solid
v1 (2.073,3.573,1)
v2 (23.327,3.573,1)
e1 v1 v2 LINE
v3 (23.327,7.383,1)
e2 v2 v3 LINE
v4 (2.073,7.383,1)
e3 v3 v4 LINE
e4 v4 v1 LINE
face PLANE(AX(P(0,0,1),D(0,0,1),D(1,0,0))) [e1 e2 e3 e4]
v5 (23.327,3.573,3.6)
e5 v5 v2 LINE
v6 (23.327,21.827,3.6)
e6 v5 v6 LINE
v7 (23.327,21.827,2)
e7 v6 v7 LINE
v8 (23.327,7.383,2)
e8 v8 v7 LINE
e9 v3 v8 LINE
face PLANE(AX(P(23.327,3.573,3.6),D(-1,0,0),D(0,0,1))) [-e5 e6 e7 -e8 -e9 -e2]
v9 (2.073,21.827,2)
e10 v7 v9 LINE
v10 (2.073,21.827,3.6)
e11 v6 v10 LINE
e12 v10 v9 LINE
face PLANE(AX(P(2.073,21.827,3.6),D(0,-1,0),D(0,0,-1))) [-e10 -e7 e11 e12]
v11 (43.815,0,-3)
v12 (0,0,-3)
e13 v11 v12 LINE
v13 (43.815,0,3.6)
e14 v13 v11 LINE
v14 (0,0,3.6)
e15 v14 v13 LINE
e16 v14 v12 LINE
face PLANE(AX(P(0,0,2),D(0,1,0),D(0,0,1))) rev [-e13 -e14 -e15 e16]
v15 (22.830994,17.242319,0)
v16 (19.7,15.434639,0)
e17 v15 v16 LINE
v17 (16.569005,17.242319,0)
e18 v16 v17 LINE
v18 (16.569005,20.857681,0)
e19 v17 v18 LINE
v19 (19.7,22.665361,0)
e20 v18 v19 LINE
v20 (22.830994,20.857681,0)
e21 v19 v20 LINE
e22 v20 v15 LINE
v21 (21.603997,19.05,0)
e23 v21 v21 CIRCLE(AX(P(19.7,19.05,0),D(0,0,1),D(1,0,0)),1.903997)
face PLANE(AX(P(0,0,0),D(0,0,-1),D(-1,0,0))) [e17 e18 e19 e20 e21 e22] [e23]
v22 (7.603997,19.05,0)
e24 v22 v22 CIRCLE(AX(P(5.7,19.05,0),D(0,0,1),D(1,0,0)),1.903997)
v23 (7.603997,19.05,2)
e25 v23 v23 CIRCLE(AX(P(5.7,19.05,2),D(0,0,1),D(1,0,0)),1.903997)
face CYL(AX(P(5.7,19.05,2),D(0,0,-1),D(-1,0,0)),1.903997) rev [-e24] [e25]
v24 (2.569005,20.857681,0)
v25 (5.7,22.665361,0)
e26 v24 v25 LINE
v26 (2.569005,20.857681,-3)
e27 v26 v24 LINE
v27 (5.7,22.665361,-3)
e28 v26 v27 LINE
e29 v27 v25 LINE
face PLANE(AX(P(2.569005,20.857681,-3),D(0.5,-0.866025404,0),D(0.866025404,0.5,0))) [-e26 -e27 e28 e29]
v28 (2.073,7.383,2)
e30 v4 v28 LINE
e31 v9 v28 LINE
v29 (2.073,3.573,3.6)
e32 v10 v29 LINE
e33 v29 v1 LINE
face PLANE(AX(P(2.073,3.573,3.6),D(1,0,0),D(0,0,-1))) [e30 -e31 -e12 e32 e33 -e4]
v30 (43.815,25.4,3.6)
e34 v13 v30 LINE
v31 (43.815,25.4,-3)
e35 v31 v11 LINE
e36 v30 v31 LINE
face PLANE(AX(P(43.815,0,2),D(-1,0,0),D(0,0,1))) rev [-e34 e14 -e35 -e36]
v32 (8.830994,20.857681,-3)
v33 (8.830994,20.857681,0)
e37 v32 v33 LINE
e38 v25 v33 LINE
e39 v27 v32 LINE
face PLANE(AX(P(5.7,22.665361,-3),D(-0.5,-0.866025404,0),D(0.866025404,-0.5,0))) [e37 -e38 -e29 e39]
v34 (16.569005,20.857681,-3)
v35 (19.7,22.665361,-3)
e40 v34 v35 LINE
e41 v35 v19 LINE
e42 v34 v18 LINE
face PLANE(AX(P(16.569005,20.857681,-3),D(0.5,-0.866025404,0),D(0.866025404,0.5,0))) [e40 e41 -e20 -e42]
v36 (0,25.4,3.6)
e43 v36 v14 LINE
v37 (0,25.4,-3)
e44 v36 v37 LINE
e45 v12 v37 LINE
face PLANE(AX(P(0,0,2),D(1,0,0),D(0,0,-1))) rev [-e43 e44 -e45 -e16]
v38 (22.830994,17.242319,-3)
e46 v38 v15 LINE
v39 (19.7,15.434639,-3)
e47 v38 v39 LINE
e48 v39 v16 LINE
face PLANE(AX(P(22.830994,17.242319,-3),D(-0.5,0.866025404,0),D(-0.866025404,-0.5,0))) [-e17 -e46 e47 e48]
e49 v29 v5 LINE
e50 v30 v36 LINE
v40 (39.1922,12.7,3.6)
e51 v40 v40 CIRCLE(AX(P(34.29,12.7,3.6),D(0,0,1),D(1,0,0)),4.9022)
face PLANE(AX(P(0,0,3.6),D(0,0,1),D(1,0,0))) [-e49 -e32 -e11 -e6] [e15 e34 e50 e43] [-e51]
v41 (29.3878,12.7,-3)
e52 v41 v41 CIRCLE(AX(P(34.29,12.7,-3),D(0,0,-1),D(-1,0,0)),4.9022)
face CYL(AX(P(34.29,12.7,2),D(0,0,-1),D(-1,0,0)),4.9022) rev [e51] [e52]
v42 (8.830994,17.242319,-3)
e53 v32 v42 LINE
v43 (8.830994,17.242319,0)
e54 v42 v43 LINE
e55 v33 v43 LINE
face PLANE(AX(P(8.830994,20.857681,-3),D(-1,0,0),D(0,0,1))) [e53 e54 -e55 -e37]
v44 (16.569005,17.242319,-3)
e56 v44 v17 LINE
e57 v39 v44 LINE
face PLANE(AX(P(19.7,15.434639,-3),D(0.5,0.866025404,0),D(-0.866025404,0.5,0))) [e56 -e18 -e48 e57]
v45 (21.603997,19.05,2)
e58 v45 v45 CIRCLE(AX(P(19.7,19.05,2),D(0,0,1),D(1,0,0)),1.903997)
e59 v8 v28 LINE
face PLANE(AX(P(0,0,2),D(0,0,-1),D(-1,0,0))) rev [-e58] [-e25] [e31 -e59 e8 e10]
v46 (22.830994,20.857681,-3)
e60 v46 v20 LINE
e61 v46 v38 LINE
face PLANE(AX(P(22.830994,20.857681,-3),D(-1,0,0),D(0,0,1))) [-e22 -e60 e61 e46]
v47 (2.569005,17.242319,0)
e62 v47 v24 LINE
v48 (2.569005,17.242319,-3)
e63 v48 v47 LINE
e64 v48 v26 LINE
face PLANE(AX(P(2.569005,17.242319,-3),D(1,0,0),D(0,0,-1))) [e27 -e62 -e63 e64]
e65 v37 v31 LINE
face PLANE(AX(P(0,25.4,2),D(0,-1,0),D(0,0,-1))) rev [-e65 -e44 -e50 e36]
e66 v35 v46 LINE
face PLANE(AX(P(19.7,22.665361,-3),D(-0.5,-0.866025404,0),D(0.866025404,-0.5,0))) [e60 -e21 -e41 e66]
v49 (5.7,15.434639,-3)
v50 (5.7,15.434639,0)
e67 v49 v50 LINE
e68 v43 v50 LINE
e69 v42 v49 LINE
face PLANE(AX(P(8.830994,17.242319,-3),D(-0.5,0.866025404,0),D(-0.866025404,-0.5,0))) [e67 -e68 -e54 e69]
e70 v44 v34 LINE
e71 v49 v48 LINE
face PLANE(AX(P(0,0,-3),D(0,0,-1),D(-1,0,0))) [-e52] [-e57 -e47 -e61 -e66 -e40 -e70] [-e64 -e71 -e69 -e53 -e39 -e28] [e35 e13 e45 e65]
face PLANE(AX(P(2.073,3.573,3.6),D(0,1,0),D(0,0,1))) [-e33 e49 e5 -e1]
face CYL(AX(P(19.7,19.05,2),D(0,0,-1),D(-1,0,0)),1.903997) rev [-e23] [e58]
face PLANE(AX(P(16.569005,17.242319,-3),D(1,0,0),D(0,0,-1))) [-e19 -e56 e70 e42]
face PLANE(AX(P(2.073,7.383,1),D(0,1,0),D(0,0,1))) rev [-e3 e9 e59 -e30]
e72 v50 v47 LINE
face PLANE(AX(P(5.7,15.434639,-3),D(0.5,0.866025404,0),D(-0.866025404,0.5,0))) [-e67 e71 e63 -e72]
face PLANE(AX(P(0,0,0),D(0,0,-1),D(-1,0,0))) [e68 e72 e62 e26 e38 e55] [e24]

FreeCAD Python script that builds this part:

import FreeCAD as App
import Part
import Sketcher
Q = App.Units.Quantity


def add_polygon(sketch, points):
    """Adds a closed chain of lines whose ends are joined by coincident constraints."""
    first, n = sketch.GeometryCount, len(points)
    for a, b in zip(points, points[1:] + points[:1]):
        sketch.addGeometry(Part.LineSegment(App.Vector(*a, 0), App.Vector(*b, 0)), False)
    for i in range(n):
        sketch.addConstraint(Sketcher.Constraint("Coincident", first + i, 2, first + (i + 1) % n, 1))

doc = App.newDocument("Part")
body = doc.addObject("PartDesign::Body", "Body")

sketch1 = body.newObject("Sketcher::SketchObject", "Sketch")
sketch1.AttachmentSupport = (doc.getObject("XY_Plane"), [""])
sketch1.MapMode = "FlatFace"
add_polygon(sketch1, [(0, 25.4), (0, 0), (43.8, 0), (43.8, 25.4)])
sketch1.addGeometry(Part.Circle(App.Vector(34.3, 12.7, 0), App.Vector(0, 0, 1), 4.9), False)
sketch1.addGeometry(Part.Circle(App.Vector(5.7, 19.1, 0), App.Vector(0, 0, 1), 1.9), False)
sketch1.addGeometry(Part.Circle(App.Vector(19.7, 19.1, 0), App.Vector(0, 0, 1), 1.9), False)
sketch1.addConstraint([
    Sketcher.Constraint("Vertical", 0),
    Sketcher.Constraint("Horizontal", 1),
    Sketcher.Constraint("Vertical", 2),
    Sketcher.Constraint("Horizontal", 3),
    Sketcher.Constraint("Coincident", 0, 2, -1, 1),
    Sketcher.Constraint("Equal", 5, 6),
    Sketcher.Constraint("Horizontal", 5, 3, 6, 3),
    Sketcher.Constraint("DistanceY", 0, 2, 0, 1, 25.4),
    Sketcher.Constraint("DistanceX", 5, 3, 6, 3, 14.0),
    Sketcher.Constraint("Diameter", 4, 9.8044),
    Sketcher.Constraint("DistanceY", -1, 1, 4, 3, 12.7),
    Sketcher.Constraint("DistanceX", -1, 1, 5, 3, 5.7),
    Sketcher.Constraint("DistanceX", 1, 1, 1, 2, 43.815),
    Sketcher.Constraint("DistanceX", -1, 1, 4, 3, 34.29),
    Sketcher.Constraint("DistanceY", -1, 1, 5, 3, 19.05),
    Sketcher.Constraint("Diameter", 5, 3.807993),
])
pad1 = body.newObject("PartDesign::Pad", "Pad")
pad1.Profile = sketch1
pad1.Length = 2

sketch2 = body.newObject("Sketcher::SketchObject", "Sketch001")
sketch2.AttachmentSupport = (doc.getObject("XY_Plane"), [""])
sketch2.MapMode = "FlatFace"
sketch2.AttachmentOffset = App.Placement(App.Vector(0, 0, 2), App.Rotation())
add_polygon(sketch2, [(0, 25.4), (0, 0), (43.8, 0), (43.8, 25.4)])
add_polygon(sketch2, [(23.3, 3.6), (2.1, 3.6), (2.1, 21.8), (23.3, 21.8)])
sketch2.addGeometry(Part.Circle(App.Vector(34.3, 12.7, 0), App.Vector(0, 0, 1), 4.9), False)
sketch2.addConstraint([
    Sketcher.Constraint("Vertical", 0),
    Sketcher.Constraint("Horizontal", 1),
    Sketcher.Constraint("Vertical", 2),
    Sketcher.Constraint("Horizontal", 3),
    Sketcher.Constraint("Horizontal", 4),
    Sketcher.Constraint("Vertical", 5),
    Sketcher.Constraint("Horizontal", 6),
    Sketcher.Constraint("Vertical", 7),
    Sketcher.Constraint("Coincident", 0, 2, -1, 1),
    Sketcher.Constraint("DistanceY", 0, 2, 0, 1, 25.4),
    Sketcher.Constraint("Diameter", 8, 9.8044),
    Sketcher.Constraint("DistanceY", -1, 1, 8, 3, 12.7),
    Sketcher.Constraint("DistanceX", 1, 1, 1, 2, 43.815),
    Sketcher.Constraint("DistanceX", 4, 2, 4, 1, 21.254),
    Sketcher.Constraint("DistanceY", 5, 1, 5, 2, 18.254),
    Sketcher.Constraint("DistanceX", -1, 1, 8, 3, 34.29),
    Sketcher.Constraint("DistanceX", -1, 1, 4, 2, 2.073),
    Sketcher.Constraint("DistanceY", -1, 1, 4, 2, 3.573),
])
pad2 = body.newObject("PartDesign::Pad", "Pad001")
pad2.Profile = sketch2
pad2.Length = 1.6

sketch3 = body.newObject("Sketcher::SketchObject", "Sketch002")
sketch3.AttachmentSupport = (doc.getObject("XY_Plane"), [""])
sketch3.MapMode = "FlatFace"
sketch3.AttachmentOffset = App.Placement(App.Vector(0, 0, -3), App.Rotation())
add_polygon(sketch3, [(43.8, 25.4), (43.8, 0), (0, 0), (0, 25.4)])
sketch3.addGeometry(Part.Circle(App.Vector(34.3, 12.7, 0), App.Vector(0, 0, 1), 4.9), False)
add_polygon(sketch3, [(16.6, 20.9), (16.6, 17.2), (19.7, 15.4), (22.8, 17.2), (22.8, 20.9), (19.7, 22.7)])
add_polygon(sketch3, [(5.7, 22.7), (2.6, 20.9), (2.6, 17.2), (5.7, 15.4), (8.8, 17.2), (8.8, 20.9)])
sketch3.addConstraint([
    Sketcher.Constraint("Vertical", 0),
    Sketcher.Constraint("Horizontal", 1),
    Sketcher.Constraint("Vertical", 2),
    Sketcher.Constraint("Horizontal", 3),
    Sketcher.Constraint("Vertical", 5),
    Sketcher.Constraint("Vertical", 8),
    Sketcher.Constraint("Vertical", 12),
    Sketcher.Constraint("Vertical", 15),
    Sketcher.Constraint("Coincident", 1, 2, -1, 1),
    Sketcher.Constraint("Parallel", 6, 9),
    Sketcher.Constraint("Parallel", 7, 10),
    Sketcher.Constraint("Parallel", 10, 11),
    Sketcher.Constraint("Parallel", 9, 13),
    Sketcher.Constraint("Parallel", 11, 14),
    Sketcher.Constraint("Parallel", 13, 16),
    Sketcher.Constraint("Horizontal", 5, 2, 7, 2),
    Sketcher.Constraint("Horizontal", 8, 2, 10, 2),
    Sketcher.Constraint("Horizontal", 10, 2, 11, 2),
    Sketcher.Constraint("Horizontal", 7, 2, 12, 2),
    Sketcher.Constraint("Horizontal", 6, 2, 13, 2),
    Sketcher.Constraint("Horizontal", 12, 2, 14, 2),
    Sketcher.Constraint("Horizontal", 11, 2, 15, 2),
    Sketcher.Constraint("Vertical", 6, 2, 9, 2),
    Sketcher.Constraint("Angle", 6, Q("-30 deg")),
    Sketcher.Constraint("DistanceY", 0, 2, 0, 1, 25.4),
    Sketcher.Constraint("DistanceX", 11, 2, 10, 2, 14.0),
    Sketcher.Constraint("Diameter", 4, 9.8044),
    Sketcher.Constraint("DistanceY", -1, 1, 4, 3, 12.7),
    Sketcher.Constraint("DistanceX", -1, 1, 6, 2, 19.7),
    Sketcher.Constraint("DistanceX", 1, 2, 1, 1, 43.815),
    Sketcher.Constraint("DistanceX", -1, 1, 4, 3, 34.29),
    Sketcher.Constraint("DistanceY", 5, 2, 5, 1, 3.615361),
    Sketcher.Constraint("Distance", 6, 3.615361),
    Sketcher.Constraint("DistanceY", -1, 1, 5, 2, 17.242319),
])
pad3 = body.newObject("PartDesign::Pad", "Pad002")
pad3.Profile = sketch3
pad3.Length = 3

sketch4 = body.newObject("Sketcher::SketchObject", "Sketch003")
sketch4.AttachmentSupport = (doc.getObject("XY_Plane"), [""])
sketch4.MapMode = "FlatFace"
sketch4.AttachmentOffset = App.Placement(App.Vector(0, 0, 2), App.Rotation())
add_polygon(sketch4, [(2.1, 7.4), (2.1, 3.6), (23.3, 3.6), (23.3, 7.4)])
sketch4.addConstraint([
    Sketcher.Constraint("Vertical", 0),
    Sketcher.Constraint("Horizontal", 1),
    Sketcher.Constraint("Vertical", 2),
    Sketcher.Constraint("Horizontal", 3),
    Sketcher.Constraint("DistanceY", 0, 2, 0, 1, 3.81),
    Sketcher.Constraint("DistanceX", 1, 1, 1, 2, 21.254),
    Sketcher.Constraint("DistanceX", -1, 1, 0, 2, 2.073),
    Sketcher.Constraint("DistanceY", -1, 1, 0, 2, 3.573),
])
pocket1 = body.newObject("PartDesign::Pocket", "Pocket")
pocket1.Profile = sketch4
pocket1.Length = 1

doc.recompute()
